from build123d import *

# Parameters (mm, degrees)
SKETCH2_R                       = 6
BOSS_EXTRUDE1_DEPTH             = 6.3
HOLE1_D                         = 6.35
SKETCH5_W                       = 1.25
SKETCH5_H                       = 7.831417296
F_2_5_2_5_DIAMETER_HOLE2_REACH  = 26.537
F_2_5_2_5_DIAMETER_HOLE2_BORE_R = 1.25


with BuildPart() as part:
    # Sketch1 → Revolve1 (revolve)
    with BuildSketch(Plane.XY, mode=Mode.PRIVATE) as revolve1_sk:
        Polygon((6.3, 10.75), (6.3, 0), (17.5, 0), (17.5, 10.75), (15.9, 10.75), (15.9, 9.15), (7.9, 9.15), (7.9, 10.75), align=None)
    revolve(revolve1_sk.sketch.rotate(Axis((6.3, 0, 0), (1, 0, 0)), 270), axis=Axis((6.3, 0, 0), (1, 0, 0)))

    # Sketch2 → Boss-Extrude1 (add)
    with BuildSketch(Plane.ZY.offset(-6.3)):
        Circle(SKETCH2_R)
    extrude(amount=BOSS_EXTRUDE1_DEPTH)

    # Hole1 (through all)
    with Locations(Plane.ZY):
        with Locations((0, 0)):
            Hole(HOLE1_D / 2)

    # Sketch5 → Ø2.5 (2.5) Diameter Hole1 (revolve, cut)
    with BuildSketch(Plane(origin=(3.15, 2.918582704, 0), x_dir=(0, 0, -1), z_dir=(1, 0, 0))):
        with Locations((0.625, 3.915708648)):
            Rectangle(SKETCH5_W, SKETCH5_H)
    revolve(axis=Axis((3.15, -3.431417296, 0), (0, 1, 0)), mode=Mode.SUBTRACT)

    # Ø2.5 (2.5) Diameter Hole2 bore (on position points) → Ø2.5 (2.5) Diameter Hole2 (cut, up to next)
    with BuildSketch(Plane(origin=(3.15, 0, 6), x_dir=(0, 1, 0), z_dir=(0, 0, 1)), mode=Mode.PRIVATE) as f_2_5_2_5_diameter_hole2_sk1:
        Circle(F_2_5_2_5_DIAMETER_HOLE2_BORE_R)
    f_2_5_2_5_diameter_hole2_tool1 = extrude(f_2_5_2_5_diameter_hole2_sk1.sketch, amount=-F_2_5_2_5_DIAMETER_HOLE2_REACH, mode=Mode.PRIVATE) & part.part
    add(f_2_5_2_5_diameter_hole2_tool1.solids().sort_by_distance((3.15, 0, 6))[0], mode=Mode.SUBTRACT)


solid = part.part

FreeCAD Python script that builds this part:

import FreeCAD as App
import Part
import Sketcher
from FreeCAD import Vector
Q = App.Units.Quantity


def add_polygon(sketch, points):
    """Adds a closed chain of lines whose ends are joined by coincident constraints."""
    first, n = sketch.GeometryCount, len(points)
    for a, b in zip(points, points[1:] + points[:1]):
        sketch.addGeometry(Part.LineSegment(App.Vector(*a, 0), App.Vector(*b, 0)), False)
    for i in range(n):
        sketch.addConstraint(Sketcher.Constraint("Coincident", first + i, 2, first + (i + 1) % n, 1))

doc = App.newDocument("Part")
params = doc.addObject("Spreadsheet::Sheet", "Params")
for row, (alias, value) in enumerate([
    ("sketch1_width", "8 mm"),
    ("sketch1_width2", "11.2 mm"),
    ("sketch1_height", "10.75 mm"),
    ("revolution_angle", "360 deg"),
    ("sketch2_diameter", "12 mm"),
    ("pad1_length", "6.3 mm"),
    ("sketch3_diameter", "6.35 mm"),
    ("hole_diameter", "6.35 mm"),
    ("sketch4_height", "1.25 mm"),
    ("groove_angle", "360 deg"),
    ("sketch5_diameter", "2.5 mm"),
    ("pocket1_length", "3.081417 mm"),
], start=1):
    params.set(f"A{row}", alias)
    params.set(f"B{row}", "=" + value)
    params.setAlias(f"B{row}", alias)

body = doc.addObject("PartDesign::Body", "Body")

sketch1 = doc.addObject("Sketcher::SketchObject", "Sketch")
body.addObject(sketch1)
sketch1.AttachmentSupport = (doc.XY_Plane, [""])
sketch1.MapMode = "FlatFace"
add_polygon(sketch1, [(6.3, 10.8), (6.3, 0), (17.5, 0), (17.5, 10.8), (15.9, 10.8), (15.9, 9.2), (7.9, 9.2), (7.9, 10.8)])
sketch1.addConstraint([
    Sketcher.Constraint("Vertical", 0),
    Sketcher.Constraint("Horizontal", 1),
    Sketcher.Constraint("Vertical", 2),
    Sketcher.Constraint("Horizontal", 3),
    Sketcher.Constraint("Vertical", 4),
    Sketcher.Constraint("Horizontal", 5),
    Sketcher.Constraint("Vertical", 6),
    Sketcher.Constraint("Horizontal", 7),
    Sketcher.Constraint("PointOnObject", 0, 2, -1),
    Sketcher.Constraint("Horizontal", 3, 2, 6, 2),
    Sketcher.Constraint("Equal", 3, 7),
    Sketcher.Constraint("Equal", 7, 4),
    Sketcher.Constraint("DistanceX", 5, 2, 5, 1, Q("8 mm")),
    Sketcher.Constraint("DistanceX", 1, 1, 1, 2, Q("11.2 mm")),
    Sketcher.Constraint("DistanceY", 0, 2, 0, 1, Q("10.75 mm")),
    Sketcher.Constraint("DistanceX", -1, 1, 0, 2, Q("6.3 mm")),
])
sketch1.setExpression("Constraints[20]", "Params.sketch1_width")
sketch1.setExpression("Constraints[21]", "Params.sketch1_width2")
sketch1.setExpression("Constraints[22]", "Params.sketch1_height")
revolution = doc.addObject("PartDesign::Revolution", "Revolution")
body.addObject(revolution)
revolution.Profile = sketch1
revolution.ReferenceAxis = (sketch1, ["H_Axis"])
revolution.setExpression("Angle", "Params.revolution_angle")

sketch2 = doc.addObject("Sketcher::SketchObject", "Sketch001")
body.addObject(sketch2)
sketch2.AttachmentSupport = (doc.YZ_Plane, [""])
sketch2.MapMode = "FlatFace"
sketch2.AttachmentOffset = App.Placement(Vector(0, 0, 6.3), App.Rotation())
sketch2.addGeometry(Part.Circle(Vector(0, 0, 0), Vector(0, 0, 1), 6), False)
sketch2.addConstraint([
    Sketcher.Constraint("Coincident", 0, 3, -1, 1),
    Sketcher.Constraint("Diameter", 0, Q("12 mm")),
])
sketch2.setExpression("Constraints[1]", "Params.sketch2_diameter")
pad1 = doc.addObject("PartDesign::Pad", "Pad")
body.addObject(pad1)
pad1.Profile = sketch2
pad1.setExpression("Length", "Params.pad1_length")
pad1.Reversed = True

sketch3 = doc.addObject("Sketcher::SketchObject", "Sketch002")
body.addObject(sketch3)
sketch3.AttachmentSupport = (doc.YZ_Plane, [""])
sketch3.MapMode = "FlatFace"
sketch3.addGeometry(Part.Circle(Vector(0, 0, 0), Vector(0, 0, 1), 3.2), False)
sketch3.addConstraint([
    Sketcher.Constraint("Coincident", 0, 3, -1, 1),
    Sketcher.Constraint("Diameter", 0, Q("6.35 mm")),
])
sketch3.setExpression("Constraints[1]", "Params.sketch3_diameter")
doc.recompute()
hole = doc.addObject("PartDesign::Hole", "Hole")
body.addObject(hole)
hole.Profile = sketch3
hole.ThreadType = "None"
hole.setExpression("Diameter", "Params.hole_diameter")
hole.DepthType = "ThroughAll"
hole.Reversed = True

sketch4 = doc.addObject("Sketcher::SketchObject", "Sketch003")
body.addObject(sketch4)
sketch4.AttachmentSupport = (doc.YZ_Plane, [""])
sketch4.MapMode = "FlatFace"
sketch4.AttachmentOffset = App.Placement(Vector(0, 0, 3.15), App.Rotation())
add_polygon(sketch4, [(10.8, 0), (2.9, 0), (2.9, -1.2), (10.8, -1.2)])
sketch4.addConstraint([
    Sketcher.Constraint("Horizontal", 0),
    Sketcher.Constraint("Vertical", 1),
    Sketcher.Constraint("Horizontal", 2),
    Sketcher.Constraint("Vertical", 3),
    Sketcher.Constraint("PointOnObject", 0, 2, -1),
    Sketcher.Constraint("DistanceY", 1, 2, 1, 1, Q("1.25 mm")),
    Sketcher.Constraint("DistanceX", -1, 1, 2, 2, Q("10.75 mm")),
    Sketcher.Constraint("DistanceX", 0, 2, 0, 1, Q("7.831417 mm")),
])
sketch4.setExpression("Constraints[9]", "Params.sketch4_height")
groove = doc.addObject("PartDesign::Groove", "Groove")
body.addObject(groove)
groove.Profile = sketch4
groove.ReferenceAxis = (sketch4, ["H_Axis"])
groove.setExpression("Angle", "Params.groove_angle")

sketch5 = doc.addObject("Sketcher::SketchObject", "Sketch004")
body.addObject(sketch5)
sketch5.AttachmentSupport = (doc.XY_Plane, [""])
sketch5.MapMode = "FlatFace"
sketch5.AttachmentOffset = App.Placement(Vector(0, 0, 6), App.Rotation())
sketch5.addGeometry(Part.Circle(Vector(3.1, 0, 0), Vector(0, 0, 1), 1.2), False)
sketch5.addConstraint([
    Sketcher.Constraint("PointOnObject", 0, 3, -1),
    Sketcher.Constraint("Diameter", 0, Q("2.5 mm")),
    Sketcher.Constraint("DistanceX", -1, 1, 0, 3, Q("3.15 mm")),
])
sketch5.setExpression("Constraints[1]", "Params.sketch5_diameter")
pocket1 = doc.addObject("PartDesign::Pocket", "Pocket")
body.addObject(pocket1)
pocket1.Profile = sketch5
pocket1.setExpression("Length", "Params.pocket1_length")

doc.recompute()
